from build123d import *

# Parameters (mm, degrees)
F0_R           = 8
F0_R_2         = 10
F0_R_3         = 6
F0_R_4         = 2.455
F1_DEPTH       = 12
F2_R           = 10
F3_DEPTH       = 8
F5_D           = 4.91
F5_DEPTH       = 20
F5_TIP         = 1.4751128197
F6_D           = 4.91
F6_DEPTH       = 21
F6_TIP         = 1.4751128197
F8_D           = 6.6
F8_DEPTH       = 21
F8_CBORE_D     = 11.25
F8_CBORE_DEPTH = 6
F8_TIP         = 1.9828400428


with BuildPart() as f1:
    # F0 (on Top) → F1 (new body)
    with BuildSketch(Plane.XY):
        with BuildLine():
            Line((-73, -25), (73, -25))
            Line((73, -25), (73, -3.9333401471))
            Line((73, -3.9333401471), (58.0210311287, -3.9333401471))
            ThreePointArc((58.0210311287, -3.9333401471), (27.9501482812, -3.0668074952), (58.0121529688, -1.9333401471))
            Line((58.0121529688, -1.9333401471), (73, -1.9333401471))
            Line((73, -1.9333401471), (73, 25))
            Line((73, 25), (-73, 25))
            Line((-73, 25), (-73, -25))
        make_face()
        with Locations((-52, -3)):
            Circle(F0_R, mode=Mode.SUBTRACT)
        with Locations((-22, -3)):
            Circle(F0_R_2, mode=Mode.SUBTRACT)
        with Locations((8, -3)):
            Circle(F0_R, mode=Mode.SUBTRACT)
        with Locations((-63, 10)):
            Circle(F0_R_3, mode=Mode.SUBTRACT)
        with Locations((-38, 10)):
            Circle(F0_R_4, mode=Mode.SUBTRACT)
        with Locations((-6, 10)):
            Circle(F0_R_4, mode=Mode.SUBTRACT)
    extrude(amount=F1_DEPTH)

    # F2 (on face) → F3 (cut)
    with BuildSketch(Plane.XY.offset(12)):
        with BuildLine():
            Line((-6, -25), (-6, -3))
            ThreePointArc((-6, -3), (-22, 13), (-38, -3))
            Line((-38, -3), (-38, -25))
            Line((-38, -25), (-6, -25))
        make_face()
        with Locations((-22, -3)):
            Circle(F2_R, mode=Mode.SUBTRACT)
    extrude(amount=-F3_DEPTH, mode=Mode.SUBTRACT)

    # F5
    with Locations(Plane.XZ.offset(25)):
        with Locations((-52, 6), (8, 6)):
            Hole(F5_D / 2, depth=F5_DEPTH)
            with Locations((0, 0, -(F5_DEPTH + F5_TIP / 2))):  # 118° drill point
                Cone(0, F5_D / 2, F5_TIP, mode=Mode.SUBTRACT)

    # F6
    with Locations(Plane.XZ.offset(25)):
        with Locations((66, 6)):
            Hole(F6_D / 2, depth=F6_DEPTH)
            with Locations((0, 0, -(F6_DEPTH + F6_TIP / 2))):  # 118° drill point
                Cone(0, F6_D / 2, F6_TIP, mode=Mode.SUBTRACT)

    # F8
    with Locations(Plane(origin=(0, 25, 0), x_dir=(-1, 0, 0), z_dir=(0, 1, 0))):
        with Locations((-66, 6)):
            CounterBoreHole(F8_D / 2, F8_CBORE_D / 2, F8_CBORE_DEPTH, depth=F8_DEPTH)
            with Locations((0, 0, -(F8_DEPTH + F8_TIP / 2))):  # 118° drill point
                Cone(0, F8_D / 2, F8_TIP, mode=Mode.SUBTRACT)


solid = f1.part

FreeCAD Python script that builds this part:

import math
import FreeCAD as App
import Part
import Sketcher
from FreeCAD import Vector
Q = App.Units.Quantity

doc = App.newDocument("Part")
body = doc.addObject("PartDesign::Body", "Body")

# Sketch on XY plane
sketch1 = doc.addObject("Sketcher::SketchObject", "Sketch")
body.addObject(sketch1)
sketch1.AttachmentSupport = (doc.XY_Plane, [""])
sketch1.MapMode = "FlatFace"
sketch1.addGeometry([
    Part.LineSegment(Vector(-73, -25, 0), Vector(73, -25, 0)),  # 0
    Part.LineSegment(Vector(73, -25, 0), Vector(73, -3.9, 0)),  # 1
    Part.LineSegment(Vector(73, -3.9, 0), Vector(58, -3.9, 0)),  # 2
    Part.ArcOfCircle(Part.Circle(Vector(43, -3, 0), Vector(0, 0, 1), 15.1), math.radians(4), math.radians(356)),  # 3
    Part.LineSegment(Vector(58, -1.9, 0), Vector(73, -1.9, 0)),  # 4
    Part.LineSegment(Vector(73, -1.9, 0), Vector(73, 25, 0)),  # 5
    Part.LineSegment(Vector(73, 25, 0), Vector(-73, 25, 0)),  # 6
    Part.LineSegment(Vector(-73, 25, 0), Vector(-73, -25, 0)),  # 7
    Part.Circle(Vector(-52, -3, 0), Vector(0, 0, 1), 8),  # 8
    Part.Circle(Vector(-22, -3, 0), Vector(0, 0, 1), 10),  # 9
    Part.Circle(Vector(8, -3, 0), Vector(0, 0, 1), 8),  # 10
    Part.Circle(Vector(-63, 10, 0), Vector(0, 0, 1), 6),  # 11
    Part.Circle(Vector(-38, 10, 0), Vector(0, 0, 1), 2.5),  # 12
    Part.Circle(Vector(-6, 10, 0), Vector(0, 0, 1), 2.5),  # 13
], False)
sketch1.addConstraint([
    Sketcher.Constraint("Coincident", 0, 2, 1, 1),
    Sketcher.Constraint("Coincident", 1, 2, 2, 1),
    Sketcher.Constraint("Coincident", 2, 2, 3, 2),
    Sketcher.Constraint("Coincident", 3, 1, 4, 1),
    Sketcher.Constraint("Coincident", 4, 2, 5, 1),
    Sketcher.Constraint("Coincident", 5, 2, 6, 1),
    Sketcher.Constraint("Coincident", 6, 2, 7, 1),
    Sketcher.Constraint("Coincident", 7, 2, 0, 1),
    Sketcher.Constraint("Horizontal", 0),
    Sketcher.Constraint("Vertical", 1),
    Sketcher.Constraint("Horizontal", 2),
    Sketcher.Constraint("Horizontal", 4),
    Sketcher.Constraint("Vertical", 5),
    Sketcher.Constraint("Horizontal", 6),
    Sketcher.Constraint("Vertical", 7),
    Sketcher.Constraint("Equal", 8, 10),
    Sketcher.Constraint("Equal", 12, 13),
    Sketcher.Constraint("Symmetric", 0, 2, 6, 2, -1, 1),
    Sketcher.Constraint("Horizontal", 3, 3, 8, 3),
    Sketcher.Constraint("Horizontal", 8, 3, 9, 3),
    Sketcher.Constraint("Horizontal", 9, 3, 10, 3),
    Sketcher.Constraint("Horizontal", 11, 3, 12, 3),
    Sketcher.Constraint("Horizontal", 12, 3, 13, 3),
    Sketcher.Constraint("Vertical", 1, 2, 4, 2),
    Sketcher.Constraint("Diameter", 8, Q("16 mm")),
    Sketcher.Constraint("Diameter", 9, Q("20 mm")),
    Sketcher.Constraint("Diameter", 11, Q("12 mm")),
    Sketcher.Constraint("Diameter", 12, Q("4.91 mm")),
    Sketcher.Constraint("DistanceX", 0, 1, 0, 2, Q("146 mm")),
    Sketcher.Constraint("DistanceY", 7, 2, 7, 1, Q("50 mm")),
    Sketcher.Constraint("Radius", 3, Q("15.05 mm")),
    Sketcher.Constraint("DistanceX", -1, 1, 3, 3, Q("43 mm")),
    Sketcher.Constraint("DistanceY", 3, 3, -1, 1, Q("3 mm")),
    Sketcher.Constraint("DistanceX", 8, 3, -1, 1, Q("52 mm")),
    Sketcher.Constraint("DistanceX", 9, 3, -1, 1, Q("22 mm")),
    Sketcher.Constraint("DistanceX", -1, 1, 10, 3, Q("8 mm")),
    Sketcher.Constraint("DistanceX", 11, 3, -1, 1, Q("63 mm")),
    Sketcher.Constraint("DistanceY", -1, 1, 11, 3, Q("10 mm")),
    Sketcher.Constraint("DistanceX", 12, 3, -1, 1, Q("38 mm")),
    Sketcher.Constraint("DistanceX", 13, 3, -1, 1, Q("6 mm")),
    Sketcher.Constraint("DistanceY", 2, 2, 3, 1, Q("2 mm")),
    Sketcher.Constraint("DistanceX", 2, 2, 2, 1, Q("14.978969 mm")),
])
pad1 = doc.addObject("PartDesign::Pad", "Pad")
body.addObject(pad1)
pad1.Profile = sketch1
pad1.Length = 12

# Sketch on XY plane
sketch2 = doc.addObject("Sketcher::SketchObject", "Sketch001")
body.addObject(sketch2)
sketch2.AttachmentSupport = (doc.XY_Plane, [""])
sketch2.MapMode = "FlatFace"
sketch2.AttachmentOffset = App.Placement(Vector(0, 0, 12), App.Rotation())
sketch2.addGeometry([
    Part.LineSegment(Vector(-6, -25, 0), Vector(-6, -3, 0)),  # 0
    Part.ArcOfCircle(Part.Circle(Vector(-22, -3, 0), Vector(0, 0, 1), 16), math.radians(0), math.radians(180)),  # 1
    Part.LineSegment(Vector(-38, -3, 0), Vector(-38, -25, 0)),  # 2
    Part.LineSegment(Vector(-38, -25, 0), Vector(-6, -25, 0)),  # 3
    Part.Circle(Vector(-22, -3, 0), Vector(0, 0, 1), 10),  # 4
], False)
sketch2.addConstraint([
    Sketcher.Constraint("Tangent", 0, 2, 1, 1),
    Sketcher.Constraint("Tangent", 1, 2, 2, 1),
    Sketcher.Constraint("Coincident", 2, 2, 3, 1),
    Sketcher.Constraint("Coincident", 3, 2, 0, 1),
    Sketcher.Constraint("Vertical", 0),
    Sketcher.Constraint("Vertical", 2),
    Sketcher.Constraint("Horizontal", 3),
    Sketcher.Constraint("Coincident", 4, 3, 1, 3),
    Sketcher.Constraint("Diameter", 4, Q("20 mm")),
    Sketcher.Constraint("Radius", 1, Q("16 mm")),
    Sketcher.Constraint("DistanceY", 0, 1, 0, 2, Q("22 mm")),
    Sketcher.Constraint("DistanceX", 1, 3, -1, 1, Q("22 mm")),
    Sketcher.Constraint("DistanceY", 1, 3, -1, 1, Q("3 mm")),
])
pocket1 = doc.addObject("PartDesign::Pocket", "Pocket")
body.addObject(pocket1)
pocket1.Profile = sketch2
pocket1.Length = 8

# Sketch on XZ plane
sketch3 = doc.addObject("Sketcher::SketchObject", "Sketch002")
body.addObject(sketch3)
sketch3.AttachmentSupport = (doc.XZ_Plane, [""])
sketch3.MapMode = "FlatFace"
sketch3.AttachmentOffset = App.Placement(Vector(0, 0, 25), App.Rotation())
sketch3.addGeometry([
    Part.Circle(Vector(-52, 6, 0), Vector(0, 0, 1), 2.5),
    Part.Circle(Vector(8, 6, 0), Vector(0, 0, 1), 2.5),
], False)
sketch3.addConstraint([
    Sketcher.Constraint("Equal", 0, 1),
    Sketcher.Constraint("Horizontal", 0, 3, 1, 3),
    Sketcher.Constraint("Diameter", 0, Q("4.91 mm")),
    Sketcher.Constraint("DistanceX", 0, 3, -1, 1, Q("52 mm")),
    Sketcher.Constraint("DistanceY", -1, 1, 0, 3, Q("6 mm")),
    Sketcher.Constraint("DistanceX", -1, 1, 1, 3, Q("8 mm")),
])
doc.recompute()
hole = doc.addObject("PartDesign::Hole", "Hole")
body.addObject(hole)
hole.Profile = sketch3
hole.ThreadType = "None"
hole.Diameter = 4.91
hole.DepthType = "Dimension"
hole.Depth = 20
hole.DrillPoint = "Angled"
hole.DrillPointAngle = 118

# Sketch on XZ plane
sketch4 = doc.addObject("Sketcher::SketchObject", "Sketch003")
body.addObject(sketch4)
sketch4.AttachmentSupport = (doc.XZ_Plane, [""])
sketch4.MapMode = "FlatFace"
sketch4.AttachmentOffset = App.Placement(Vector(0, 0, 25), App.Rotation())
sketch4.addGeometry(Part.Circle(Vector(66, 6, 0), Vector(0, 0, 1), 2.5), False)
sketch4.addConstraint([
    Sketcher.Constraint("Diameter", 0, Q("4.91 mm")),
    Sketcher.Constraint("DistanceX", -1, 1, 0, 3, Q("66 mm")),
    Sketcher.Constraint("DistanceY", -1, 1, 0, 3, Q("6 mm")),
])
doc.recompute()
hole2 = doc.addObject("PartDesign::Hole", "Hole001")
body.addObject(hole2)
hole2.Profile = sketch4
hole2.ThreadType = "None"
hole2.Diameter = 4.91
hole2.DepthType = "Dimension"
hole2.Depth = 21
hole2.DrillPoint = "Angled"
hole2.DrillPointAngle = 118

# Sketch on XZ plane
sketch5 = doc.addObject("Sketcher::SketchObject", "Sketch004")
body.addObject(sketch5)
sketch5.AttachmentSupport = (doc.XZ_Plane, [""])
sketch5.MapMode = "FlatFace"
sketch5.AttachmentOffset = App.Placement(Vector(0, 0, -25), App.Rotation())
sketch5.addGeometry(Part.Circle(Vector(66, 6, 0), Vector(0, 0, 1), 3.3), False)
sketch5.addConstraint([
    Sketcher.Constraint("Diameter", 0, Q("6.6 mm")),
    Sketcher.Constraint("DistanceX", -1, 1, 0, 3, Q("66 mm")),
    Sketcher.Constraint("DistanceY", -1, 1, 0, 3, Q("6 mm")),
])
doc.recompute()
hole3 = doc.addObject("PartDesign::Hole", "Hole002")
body.addObject(hole3)
hole3.Profile = sketch5
hole3.ThreadType = "None"
hole3.Diameter = 6.6
hole3.DepthType = "Dimension"
hole3.Depth = 21
hole3.DrillPoint = "Angled"
hole3.DrillPointAngle = 118
hole3.HoleCutType = "Counterbore"
hole3.HoleCutDiameter = 11.25
hole3.HoleCutDepth = 6
hole3.Reversed = True

doc.recompute()
